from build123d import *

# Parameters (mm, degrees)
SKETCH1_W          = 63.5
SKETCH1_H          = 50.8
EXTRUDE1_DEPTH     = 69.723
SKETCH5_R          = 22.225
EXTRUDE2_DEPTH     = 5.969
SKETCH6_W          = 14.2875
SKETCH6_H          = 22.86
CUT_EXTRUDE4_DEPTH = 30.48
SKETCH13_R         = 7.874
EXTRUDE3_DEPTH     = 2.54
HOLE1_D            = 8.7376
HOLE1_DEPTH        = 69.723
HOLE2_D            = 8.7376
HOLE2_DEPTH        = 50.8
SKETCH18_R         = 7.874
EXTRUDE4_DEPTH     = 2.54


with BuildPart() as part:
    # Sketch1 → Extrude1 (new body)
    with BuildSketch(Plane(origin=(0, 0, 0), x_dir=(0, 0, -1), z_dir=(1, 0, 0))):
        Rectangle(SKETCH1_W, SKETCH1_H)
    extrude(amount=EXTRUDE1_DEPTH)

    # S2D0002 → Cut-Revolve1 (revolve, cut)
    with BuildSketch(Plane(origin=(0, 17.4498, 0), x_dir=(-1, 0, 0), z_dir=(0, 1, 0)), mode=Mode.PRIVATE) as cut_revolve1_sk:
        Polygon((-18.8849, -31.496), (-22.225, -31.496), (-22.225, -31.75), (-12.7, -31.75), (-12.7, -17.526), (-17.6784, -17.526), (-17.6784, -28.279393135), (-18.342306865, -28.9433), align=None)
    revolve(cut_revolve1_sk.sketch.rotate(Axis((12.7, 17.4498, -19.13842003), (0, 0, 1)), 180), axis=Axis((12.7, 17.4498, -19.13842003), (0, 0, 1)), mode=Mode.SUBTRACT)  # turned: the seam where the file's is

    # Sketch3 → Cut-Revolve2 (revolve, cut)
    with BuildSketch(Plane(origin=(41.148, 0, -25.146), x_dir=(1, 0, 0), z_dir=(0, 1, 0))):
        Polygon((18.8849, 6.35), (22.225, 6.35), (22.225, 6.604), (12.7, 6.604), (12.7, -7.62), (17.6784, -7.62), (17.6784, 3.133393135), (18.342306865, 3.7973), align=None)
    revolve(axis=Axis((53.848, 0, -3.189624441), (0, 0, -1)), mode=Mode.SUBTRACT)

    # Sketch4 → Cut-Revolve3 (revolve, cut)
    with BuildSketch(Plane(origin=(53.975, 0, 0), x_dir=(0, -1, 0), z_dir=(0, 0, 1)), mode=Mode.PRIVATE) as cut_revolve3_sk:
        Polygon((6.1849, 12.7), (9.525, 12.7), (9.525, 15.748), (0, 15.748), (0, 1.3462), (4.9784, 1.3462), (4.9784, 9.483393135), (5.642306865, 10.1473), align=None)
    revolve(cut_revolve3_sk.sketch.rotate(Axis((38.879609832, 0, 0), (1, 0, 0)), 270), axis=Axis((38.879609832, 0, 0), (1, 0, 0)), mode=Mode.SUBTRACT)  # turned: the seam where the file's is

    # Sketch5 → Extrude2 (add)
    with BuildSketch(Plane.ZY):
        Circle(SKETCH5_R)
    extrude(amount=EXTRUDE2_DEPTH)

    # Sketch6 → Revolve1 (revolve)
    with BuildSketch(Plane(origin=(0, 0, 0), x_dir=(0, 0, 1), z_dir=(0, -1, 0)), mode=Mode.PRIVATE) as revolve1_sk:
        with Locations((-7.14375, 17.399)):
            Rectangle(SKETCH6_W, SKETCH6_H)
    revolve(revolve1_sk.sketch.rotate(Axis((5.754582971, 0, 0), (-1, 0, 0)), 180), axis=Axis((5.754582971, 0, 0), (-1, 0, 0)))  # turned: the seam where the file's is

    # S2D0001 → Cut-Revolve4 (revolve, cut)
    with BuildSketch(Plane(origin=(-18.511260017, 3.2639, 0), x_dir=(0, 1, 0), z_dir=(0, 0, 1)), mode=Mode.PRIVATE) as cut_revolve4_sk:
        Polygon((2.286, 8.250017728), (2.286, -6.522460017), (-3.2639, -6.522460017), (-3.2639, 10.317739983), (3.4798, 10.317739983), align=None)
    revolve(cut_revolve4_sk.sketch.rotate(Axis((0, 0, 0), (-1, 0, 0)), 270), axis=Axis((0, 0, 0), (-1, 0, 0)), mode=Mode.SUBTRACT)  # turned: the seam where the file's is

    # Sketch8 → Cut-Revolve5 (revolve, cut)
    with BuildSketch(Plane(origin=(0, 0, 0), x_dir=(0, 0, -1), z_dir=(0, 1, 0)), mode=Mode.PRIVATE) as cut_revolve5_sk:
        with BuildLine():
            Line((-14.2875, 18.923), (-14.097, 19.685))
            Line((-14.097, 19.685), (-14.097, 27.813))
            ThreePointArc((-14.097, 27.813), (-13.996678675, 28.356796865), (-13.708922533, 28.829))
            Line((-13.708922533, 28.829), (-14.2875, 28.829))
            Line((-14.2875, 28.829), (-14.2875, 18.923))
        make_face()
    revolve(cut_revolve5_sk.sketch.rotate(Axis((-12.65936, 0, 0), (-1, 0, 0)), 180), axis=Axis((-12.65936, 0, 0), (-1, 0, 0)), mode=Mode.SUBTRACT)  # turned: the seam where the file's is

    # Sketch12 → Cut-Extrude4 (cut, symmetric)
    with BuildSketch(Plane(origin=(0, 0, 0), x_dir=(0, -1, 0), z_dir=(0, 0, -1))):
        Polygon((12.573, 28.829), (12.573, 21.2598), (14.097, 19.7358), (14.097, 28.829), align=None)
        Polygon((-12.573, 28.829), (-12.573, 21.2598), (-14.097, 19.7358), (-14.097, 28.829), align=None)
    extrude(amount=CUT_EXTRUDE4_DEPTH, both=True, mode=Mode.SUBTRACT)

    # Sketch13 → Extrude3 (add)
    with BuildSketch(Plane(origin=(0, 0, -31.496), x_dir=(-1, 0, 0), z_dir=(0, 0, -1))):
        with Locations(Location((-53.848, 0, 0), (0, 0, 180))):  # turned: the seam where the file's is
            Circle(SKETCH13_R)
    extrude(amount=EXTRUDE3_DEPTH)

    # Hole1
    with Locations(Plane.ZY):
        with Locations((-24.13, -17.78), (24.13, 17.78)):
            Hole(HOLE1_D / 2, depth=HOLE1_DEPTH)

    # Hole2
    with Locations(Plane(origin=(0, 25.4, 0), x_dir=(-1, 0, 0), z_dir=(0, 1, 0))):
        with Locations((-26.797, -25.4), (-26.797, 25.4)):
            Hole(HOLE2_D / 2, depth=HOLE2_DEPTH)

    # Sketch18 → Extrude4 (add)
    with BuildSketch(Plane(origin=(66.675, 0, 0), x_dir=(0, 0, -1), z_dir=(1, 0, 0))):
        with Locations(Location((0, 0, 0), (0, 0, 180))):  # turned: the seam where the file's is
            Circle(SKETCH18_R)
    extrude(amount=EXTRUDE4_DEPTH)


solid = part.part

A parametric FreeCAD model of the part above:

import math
import FreeCAD as App
import Part
import Sketcher
Q = App.Units.Quantity


def add_polygon(sketch, points):
    """Adds a closed chain of lines whose ends are joined by coincident constraints."""
    first, n = sketch.GeometryCount, len(points)
    for a, b in zip(points, points[1:] + points[:1]):
        sketch.addGeometry(Part.LineSegment(App.Vector(*a, 0), App.Vector(*b, 0)), False)
    for i in range(n):
        sketch.addConstraint(Sketcher.Constraint("Coincident", first + i, 2, first + (i + 1) % n, 1))

doc = App.newDocument("Part")
body = doc.addObject("PartDesign::Body", "Body")

# Sketch on YZ plane
sketch1 = body.newObject("Sketcher::SketchObject", "Sketch")
sketch1.AttachmentSupport = (doc.getObject("YZ_Plane"), [""])
sketch1.MapMode = "FlatFace"
add_polygon(sketch1, [(25, 32), (-25, 32), (-25, -32), (25, -32)])  # lines 0-3
sketch1.addConstraint([
    Sketcher.Constraint("Horizontal", 0),
    Sketcher.Constraint("Vertical", 1),
    Sketcher.Constraint("Horizontal", 2),
    Sketcher.Constraint("Vertical", 3),
    Sketcher.Constraint("Symmetric", 0, 2, 2, 2, -1, 1),
    Sketcher.Constraint("DistanceX", 0, 2, 0, 1, Q("2 in")),
    Sketcher.Constraint("DistanceY", 1, 2, 1, 1, Q("2.5 in")),
])
pad1 = body.newObject("PartDesign::Pad", "Pad")
pad1.Profile = sketch1
pad1.Length = Q("2.745 in")

# Sketch on XZ plane
sketch2 = body.newObject("Sketcher::SketchObject", "Sketch001")
sketch2.AttachmentSupport = (doc.getObject("XZ_Plane"), [""])
sketch2.MapMode = "FlatFace"
sketch2.AttachmentOffset = App.Placement(App.Vector(0, 0, -0.687 * 25.4), App.Rotation())
add_polygon(sketch2, [(18.88, -31.5), (22.23, -31.5), (22.23, -31.75), (12.7, -31.75), (12.7, -17.53), (17.68, -17.53), (17.68, -28.28), (18.34, -28.94)])  # lines 0-7
sketch2.addGeometry(Part.LineSegment(App.Vector(12.7, -31.75, 0), App.Vector(12.7, -17.53, 0)), True)  # axis
sketch2.addConstraint([
    Sketcher.Constraint("Horizontal", 0),
    Sketcher.Constraint("Vertical", 1),
    Sketcher.Constraint("Horizontal", 2),
    Sketcher.Constraint("Vertical", 3),
    Sketcher.Constraint("Horizontal", 4),
    Sketcher.Constraint("Vertical", 5),
    Sketcher.Constraint("Vertical", 8),
    Sketcher.Constraint("Coincident", 8, 1, 2, 2),
    Sketcher.Constraint("Horizontal", 4, 2, 8, 2),
    Sketcher.Constraint("Angle", 6, Q("-45 deg")),
    Sketcher.Constraint("Angle", 7, Q("-78 deg")),
    Sketcher.Constraint("DistanceY", 1, 2, 1, 1, Q("0.01 in")),
    Sketcher.Constraint("DistanceY", 3, 1, 3, 2, Q("0.56 in")),
    Sketcher.Constraint("DistanceX", -1, 1, 2, 2, Q("0.5 in")),
    Sketcher.Constraint("DistanceX", 2, 2, 2, 1, Q("0.375 in")),
    Sketcher.Constraint("DistanceX", 4, 1, 4, 2, Q("0.196 in")),
    Sketcher.Constraint("DistanceY", 0, 2, -1, 1, Q("1.24 in")),
    Sketcher.Constraint("DistanceX", 0, 1, 0, 2, Q("0.1315 in")),
    Sketcher.Constraint("DistanceY", 6, 2, -1, 1, Q("1.1395 in")),
])
groove = body.newObject("PartDesign::Groove", "Groove")
groove.Profile = sketch2
groove.ReferenceAxis = (sketch2, ["Axis0"])
groove.Angle = 360

# Sketch on XZ plane
sketch3 = body.newObject("Sketcher::SketchObject", "Sketch002")
sketch3.AttachmentSupport = (doc.getObject("XZ_Plane"), [""])
sketch3.MapMode = "FlatFace"
add_polygon(sketch3, [(60.03, -31.5), (63.37, -31.5), (63.37, -31.75), (53.85, -31.75), (53.85, -17.53), (58.83, -17.53), (58.83, -28.28), (59.49, -28.94)])  # lines 0-7
sketch3.addGeometry(Part.LineSegment(App.Vector(53.85, -17.53, 0), App.Vector(53.85, -31.75, 0)), True)  # axis
sketch3.addConstraint([
    Sketcher.Constraint("Horizontal", 0),
    Sketcher.Constraint("Vertical", 1),
    Sketcher.Constraint("Horizontal", 2),
    Sketcher.Constraint("Vertical", 3),
    Sketcher.Constraint("Horizontal", 4),
    Sketcher.Constraint("Vertical", 5),
    Sketcher.Constraint("Vertical", 8),
    Sketcher.Constraint("Coincident", 8, 1, 3, 2),
    Sketcher.Constraint("Horizontal", 1, 2, 8, 2),
    Sketcher.Constraint("Angle", 6, Q("-45 deg")),
    Sketcher.Constraint("Angle", 7, Q("-78 deg")),
    Sketcher.Constraint("DistanceY", 1, 2, 1, 1, Q("0.01 in")),
    Sketcher.Constraint("DistanceY", 3, 1, 3, 2, Q("0.56 in")),
    Sketcher.Constraint("DistanceX", 2, 2, 2, 1, Q("0.375 in")),
    Sketcher.Constraint("DistanceX", 4, 1, 4, 2, Q("0.196 in")),
    Sketcher.Constraint("DistanceY", 0, 2, -1, 1, Q("1.24 in")),
    Sketcher.Constraint("DistanceX", -1, 1, 2, 2, Q("2.12 in")),
    Sketcher.Constraint("DistanceX", 0, 1, 0, 2, Q("0.1315 in")),
    Sketcher.Constraint("DistanceY", 6, 2, -1, 1, Q("1.1395 in")),
])
groove2 = body.newObject("PartDesign::Groove", "Groove001")
groove2.Profile = sketch3
groove2.ReferenceAxis = (sketch3, ["Axis0"])
groove2.Angle = 360

# Sketch on XY plane
sketch4 = body.newObject("Sketcher::SketchObject", "Sketch003")
sketch4.AttachmentSupport = (doc.getObject("XY_Plane"), [""])
sketch4.MapMode = "FlatFace"
add_polygon(sketch4, [(66.7, -6.2), (66.7, -9.5), (69.7, -9.5), (69.7, 0), (55.3, 0), (55.3, -5), (63.5, -5), (64.1, -5.6)])  # lines 0-7
sketch4.addConstraint([
    Sketcher.Constraint("Vertical", 0),
    Sketcher.Constraint("Horizontal", 1),
    Sketcher.Constraint("Vertical", 2),
    Sketcher.Constraint("Horizontal", 3),
    Sketcher.Constraint("Vertical", 4),
    Sketcher.Constraint("Horizontal", 5),
    Sketcher.Constraint("PointOnObject", 2, 2, -1),
    Sketcher.Constraint("Angle", 6, Q("-45 deg")),
    Sketcher.Constraint("Angle", 7, Q("-12 deg")),
    Sketcher.Constraint("DistanceX", 1, 1, 1, 2, Q("0.12 in")),
    Sketcher.Constraint("DistanceX", 3, 2, 3, 1, Q("0.567 in")),
    Sketcher.Constraint("DistanceY", 2, 1, 2, 2, Q("0.375 in")),
    Sketcher.Constraint("DistanceY", 4, 2, 4, 1, Q("0.196 in")),
    Sketcher.Constraint("DistanceY", 0, 2, 0, 1, Q("0.1315 in")),
    Sketcher.Constraint("DistanceX", -1, 1, 0, 2, Q("2.625 in")),
    Sketcher.Constraint("DistanceX", -1, 1, 6, 2, Q("2.5245 in")),
])
groove3 = body.newObject("PartDesign::Groove", "Groove002")
groove3.Profile = sketch4
groove3.ReferenceAxis = (sketch4, ["H_Axis"])
groove3.Angle = 360

# Sketch on YZ plane
sketch5 = body.newObject("Sketcher::SketchObject", "Sketch004")
sketch5.AttachmentSupport = (doc.getObject("YZ_Plane"), [""])
sketch5.MapMode = "FlatFace"
sketch5.addGeometry(Part.Circle(App.Vector(0, 0, 0), App.Vector(0, 0, 1), 22), False)
sketch5.addConstraint([
    Sketcher.Constraint("Coincident", 0, 3, -1, 1),
    Sketcher.Constraint("Diameter", 0, Q("1.75 in")),
])
pad2 = body.newObject("PartDesign::Pad", "Pad001")
pad2.Profile = sketch5
pad2.Length = Q("0.235 in")
pad2.Reversed = True

# Sketch on XZ plane
sketch6 = body.newObject("Sketcher::SketchObject", "Sketch005")
sketch6.AttachmentSupport = (doc.getObject("XZ_Plane"), [""])
sketch6.MapMode = "FlatFace"
add_polygon(sketch6, [(-29, -14), (-6, -14), (-6, 0), (-29, 0)])  # lines 0-3
sketch6.addConstraint([
    Sketcher.Constraint("Horizontal", 0),
    Sketcher.Constraint("Vertical", 1),
    Sketcher.Constraint("Horizontal", 2),
    Sketcher.Constraint("Vertical", 3),
    Sketcher.Constraint("PointOnObject", 1, 2, -1),
    Sketcher.Constraint("DistanceX", 0, 1, 0, 2, Q("0.9 in")),
    Sketcher.Constraint("DistanceY", 1, 1, 1, 2, Q("0.5625 in")),
    Sketcher.Constraint("DistanceX", 0, 2, -1, 1, Q("0.235 in")),
])
revolution = body.newObject("PartDesign::Revolution", "Revolution")
revolution.Profile = sketch6
revolution.ReferenceAxis = (sketch6, ["H_Axis"])
revolution.Angle = 360

# Sketch on XY plane
sketch7 = body.newObject("Sketcher::SketchObject", "Sketch006")
sketch7.AttachmentSupport = (doc.getObject("XY_Plane"), [""])
sketch7.MapMode = "FlatFace"
add_polygon(sketch7, [(-12, 5.5), (-26.8, 5.5), (-28.8, 6.7), (-28.8, 0), (-12, 0)])  # lines 0-4
sketch7.addConstraint([
    Sketcher.Constraint("Horizontal", 0),
    Sketcher.Constraint("Vertical", 2),
    Sketcher.Constraint("Horizontal", 3),
    Sketcher.Constraint("Vertical", 4),
    Sketcher.Constraint("PointOnObject", 2, 2, -1),
    Sketcher.Constraint("Angle", 1, Q("150 deg")),
    Sketcher.Constraint("DistanceX", 3, 1, 3, 2, Q("0.663 in")),
    Sketcher.Constraint("Distance", 1, Q("0.094 in")),
    Sketcher.Constraint("DistanceY", 2, 2, 2, 1, Q("0.2655 in")),
    Sketcher.Constraint("DistanceX", 1, 2, -1, 1, Q("1.135 in")),
])
groove4 = body.newObject("PartDesign::Groove", "Groove003")
groove4.Profile = sketch7
groove4.ReferenceAxis = (sketch7, ["H_Axis"])
groove4.Angle = 360

# Sketch on XZ plane
sketch8 = body.newObject("Sketcher::SketchObject", "Sketch007")
sketch8.AttachmentSupport = (doc.getObject("XZ_Plane"), [""])
sketch8.MapMode = "FlatFace"
sketch8.addGeometry([
    Part.LineSegment(App.Vector(-18.9, 14.3, 0), App.Vector(-19.7, 14.1, 0)),  # 0
    Part.LineSegment(App.Vector(-19.7, 14.1, 0), App.Vector(-27.8, 14.1, 0)),  # 1
    Part.ArcOfCircle(Part.Circle(App.Vector(-27.8, 12.6, 0), App.Vector(0, 0, 1), 1.5), math.radians(90), math.radians(132)),  # 2
    Part.LineSegment(App.Vector(-28.8, 13.7, 0), App.Vector(-28.8, 14.3, 0)),  # 3
    Part.LineSegment(App.Vector(-28.8, 14.3, 0), App.Vector(-18.9, 14.3, 0)),  # 4
], False)
sketch8.addConstraint([
    Sketcher.Constraint("Coincident", 0, 2, 1, 1),
    Sketcher.Constraint("Tangent", 1, 2, 2, 1),
    Sketcher.Constraint("Coincident", 2, 2, 3, 1),
    Sketcher.Constraint("Coincident", 3, 2, 4, 1),
    Sketcher.Constraint("Coincident", 4, 2, 0, 1),
    Sketcher.Constraint("Horizontal", 1),
    Sketcher.Constraint("Vertical", 3),
    Sketcher.Constraint("Horizontal", 4),
    Sketcher.Constraint("Radius", 2, Q("0.06 in")),
    Sketcher.Constraint("DistanceX", 1, 2, 1, 1, Q("0.32 in")),
    Sketcher.Constraint("DistanceX", 4, 1, 4, 2, Q("0.39 in")),
    Sketcher.Constraint("DistanceX", 2, 2, 1, 2, Q("0.04 in")),
    Sketcher.Constraint("DistanceX", 2, 3, -1, 1, Q("1.095 in")),
    Sketcher.Constraint("DistanceY", -1, 1, 2, 3, Q("0.495 in")),
    Sketcher.Constraint("DistanceY", -1, 1, 3, 2, Q("0.5625 in")),
])
groove5 = body.newObject("PartDesign::Groove", "Groove004")
groove5.Profile = sketch8
groove5.ReferenceAxis = (sketch8, ["H_Axis"])
groove5.Angle = 360

# Sketch on XY plane
sketch9 = body.newObject("Sketcher::SketchObject", "Sketch008")
sketch9.AttachmentSupport = (doc.getObject("XY_Plane"), [""])
sketch9.MapMode = "FlatFace"
add_polygon(sketch9, [(-28.8, -12.6), (-21.3, -12.6), (-19.7, -14.1), (-28.8, -14.1)])  # lines 0-3
add_polygon(sketch9, [(-21.3, 12.6), (-28.8, 12.6), (-28.8, 14.1), (-19.7, 14.1)])  # lines 4-7
sketch9.addConstraint([
    Sketcher.Constraint("Horizontal", 0),
    Sketcher.Constraint("Horizontal", 2),
    Sketcher.Constraint("Vertical", 3),
    Sketcher.Constraint("Horizontal", 4),
    Sketcher.Constraint("Vertical", 5),
    Sketcher.Constraint("Horizontal", 6),
    Sketcher.Constraint("Symmetric", 3, 2, 4, 2, -1),
    Sketcher.Constraint("Symmetric", 1, 2, 6, 2, -1),
    Sketcher.Constraint("Perpendicular", 1, 7),
    Sketcher.Constraint("Vertical", 0, 2, 7, 2),
    Sketcher.Constraint("DistanceY", 3, 1, 3, 2, Q("0.06 in")),
    Sketcher.Constraint("DistanceX", 0, 1, 0, 2, Q("0.298 in")),
    Sketcher.Constraint("DistanceY", 3, 2, 4, 2, Q("0.99 in")),
    Sketcher.Constraint("DistanceX", 0, 2, -1, 1, Q("0.837 in")),
])
pocket1 = body.newObject("PartDesign::Pocket", "Pocket")
pocket1.Profile = sketch9
pocket1.Length = Q("2.4 in")
pocket1.Midplane = True

# Sketch on XY plane
sketch10 = body.newObject("Sketcher::SketchObject", "Sketch009")
sketch10.AttachmentSupport = (doc.getObject("XY_Plane"), [""])
sketch10.MapMode = "FlatFace"
sketch10.AttachmentOffset = App.Placement(App.Vector(0, 0, -1.24 * 25.4), App.Rotation())
sketch10.addGeometry(Part.Circle(App.Vector(54, 0, 0), App.Vector(0, 0, 1), 8), False)
sketch10.addConstraint([
    Sketcher.Constraint("PointOnObject", 0, 3, -1),
    Sketcher.Constraint("Diameter", 0, Q("0.62 in")),
    Sketcher.Constraint("DistanceX", -1, 1, 0, 3, Q("2.12 in")),
])
pad3 = body.newObject("PartDesign::Pad", "Pad002")
pad3.Profile = sketch10
pad3.Length = Q("0.1 in")
pad3.Reversed = True

# Sketch on YZ plane
sketch11 = body.newObject("Sketcher::SketchObject", "Sketch010")
sketch11.AttachmentSupport = (doc.getObject("YZ_Plane"), [""])
sketch11.MapMode = "FlatFace"
sketch11.addGeometry([
    Part.Circle(App.Vector(-17.8, -24.1, 0), App.Vector(0, 0, 1), 4.4),
    Part.Circle(App.Vector(17.8, 24.1, 0), App.Vector(0, 0, 1), 4.4),
], False)
sketch11.addConstraint([
    Sketcher.Constraint("Equal", 0, 1),
    Sketcher.Constraint("Symmetric", 0, 3, 1, 3, -1, 1),
    Sketcher.Constraint("Diameter", 0, Q("0.344 in")),
    Sketcher.Constraint("DistanceX", 0, 3, -1, 1, Q("0.7 in")),
    Sketcher.Constraint("DistanceY", 0, 3, 1, 3, Q("1.9 in")),
])
doc.recompute()
hole = body.newObject("PartDesign::Hole", "Hole")
hole.Profile = sketch11
hole.ThreadType = "None"
hole.Diameter = Q("0.344 in")
hole.DepthType = "Dimension"
hole.Depth = Q("2.745 in")
hole.DrillPoint = "Flat"
hole.Reversed = True

# Sketch on XZ plane
sketch12 = body.newObject("Sketcher::SketchObject", "Sketch011")
sketch12.AttachmentSupport = (doc.getObject("XZ_Plane"), [""])
sketch12.MapMode = "FlatFace"
sketch12.AttachmentOffset = App.Placement(App.Vector(0, 0, -1 * 25.4), App.Rotation())
sketch12.addGeometry([
    Part.Circle(App.Vector(26.8, -25.4, 0), App.Vector(0, 0, 1), 4.4),
    Part.Circle(App.Vector(26.8, 25.4, 0), App.Vector(0, 0, 1), 4.4),
], False)
sketch12.addConstraint([
    Sketcher.Constraint("Equal", 0, 1),
    Sketcher.Constraint("Symmetric", 0, 3, 1, 3, -1),
    Sketcher.Constraint("Diameter", 0, Q("0.344 in")),
    Sketcher.Constraint("DistanceY", 0, 3, -1, 1, Q("1 in")),
    Sketcher.Constraint("DistanceX", -1, 1, 0, 3, Q("1.055 in")),
])
doc.recompute()
hole2 = body.newObject("PartDesign::Hole", "Hole001")
hole2.Profile = sketch12
hole2.ThreadType = "None"
hole2.Diameter = Q("0.344 in")
hole2.DepthType = "Dimension"
hole2.Depth = Q("2 in")
hole2.DrillPoint = "Flat"
hole2.Reversed = True

# Sketch on YZ plane
sketch13 = body.newObject("Sketcher::SketchObject", "Sketch012")
sketch13.AttachmentSupport = (doc.getObject("YZ_Plane"), [""])
sketch13.MapMode = "FlatFace"
sketch13.AttachmentOffset = App.Placement(App.Vector(0, 0, 2.625 * 25.4), App.Rotation())
sketch13.addGeometry(Part.Circle(App.Vector(0, 0, 0), App.Vector(0, 0, 1), 8), False)
sketch13.addConstraint([
    Sketcher.Constraint("Coincident", 0, 3, -1, 1),
    Sketcher.Constraint("Diameter", 0, Q("0.62 in")),
])
pad4 = body.newObject("PartDesign::Pad", "Pad003")
pad4.Profile = sketch13
pad4.Length = Q("0.1 in")

doc.recompute()
